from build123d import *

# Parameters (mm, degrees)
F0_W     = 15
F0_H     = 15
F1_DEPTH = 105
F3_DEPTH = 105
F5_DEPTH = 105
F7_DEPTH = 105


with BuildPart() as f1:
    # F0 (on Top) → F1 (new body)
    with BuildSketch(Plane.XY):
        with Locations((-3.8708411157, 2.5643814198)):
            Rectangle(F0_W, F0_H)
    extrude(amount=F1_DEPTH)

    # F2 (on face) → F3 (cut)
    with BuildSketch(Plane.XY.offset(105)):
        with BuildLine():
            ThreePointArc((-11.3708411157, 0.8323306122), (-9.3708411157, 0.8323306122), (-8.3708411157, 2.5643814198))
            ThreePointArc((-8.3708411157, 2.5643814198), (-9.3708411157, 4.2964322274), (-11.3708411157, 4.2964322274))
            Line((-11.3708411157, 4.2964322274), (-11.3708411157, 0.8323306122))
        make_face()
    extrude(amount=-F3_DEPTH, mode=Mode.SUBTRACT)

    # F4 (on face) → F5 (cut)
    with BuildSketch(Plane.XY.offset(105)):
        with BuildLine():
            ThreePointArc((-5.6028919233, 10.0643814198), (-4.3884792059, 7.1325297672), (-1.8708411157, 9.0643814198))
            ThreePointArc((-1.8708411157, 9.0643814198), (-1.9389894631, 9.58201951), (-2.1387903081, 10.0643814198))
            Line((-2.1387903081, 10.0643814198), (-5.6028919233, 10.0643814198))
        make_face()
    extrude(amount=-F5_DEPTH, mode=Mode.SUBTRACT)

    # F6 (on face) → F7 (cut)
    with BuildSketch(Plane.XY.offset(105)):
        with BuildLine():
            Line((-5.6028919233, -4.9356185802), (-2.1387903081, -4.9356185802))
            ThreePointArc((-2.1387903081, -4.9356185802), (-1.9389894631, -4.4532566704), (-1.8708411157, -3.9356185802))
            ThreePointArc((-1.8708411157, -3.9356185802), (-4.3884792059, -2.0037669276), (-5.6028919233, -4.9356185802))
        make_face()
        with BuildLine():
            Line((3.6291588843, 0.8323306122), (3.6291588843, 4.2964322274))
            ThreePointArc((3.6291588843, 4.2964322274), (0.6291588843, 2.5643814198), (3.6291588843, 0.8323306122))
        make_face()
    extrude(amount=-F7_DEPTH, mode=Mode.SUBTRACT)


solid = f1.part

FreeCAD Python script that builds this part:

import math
import FreeCAD as App
import Part
import Sketcher
Q = App.Units.Quantity


def add_polygon(sketch, points):
    """Adds a closed chain of lines whose ends are joined by coincident constraints."""
    first, n = sketch.GeometryCount, len(points)
    for a, b in zip(points, points[1:] + points[:1]):
        sketch.addGeometry(Part.LineSegment(App.Vector(*a, 0), App.Vector(*b, 0)), False)
    for i in range(n):
        sketch.addConstraint(Sketcher.Constraint("Coincident", first + i, 2, first + (i + 1) % n, 1))

doc = App.newDocument("Part")
body = doc.addObject("PartDesign::Body", "Body")

sketch1 = body.newObject("Sketcher::SketchObject", "Sketch")
sketch1.AttachmentSupport = (doc.getObject("XY_Plane"), [""])
sketch1.MapMode = "FlatFace"
add_polygon(sketch1, [(-11.370841, 10.064381), (-11.370841, -4.935619), (3.629159, -4.935619), (3.629159, 10.064381)])
sketch1.addConstraint([
    Sketcher.Constraint("Vertical", 0),
    Sketcher.Constraint("Horizontal", 1),
    Sketcher.Constraint("Vertical", 2),
    Sketcher.Constraint("Horizontal", 3),
    Sketcher.Constraint("Equal", 3, 0),
    Sketcher.Constraint("DistanceX", 1, 1, 1, 2, Q("15 mm")),
    Sketcher.Constraint("DistanceX", 0, 2, -1, 1, Q("11.370841 mm")),
    Sketcher.Constraint("DistanceY", 0, 2, -1, 1, Q("4.935619 mm")),
])
pad1 = body.newObject("PartDesign::Pad", "Pad")
pad1.Profile = sketch1
pad1.Length = 105

sketch2 = body.newObject("Sketcher::SketchObject", "Sketch001")
sketch2.AttachmentSupport = (doc.getObject("XY_Plane"), [""])
sketch2.MapMode = "FlatFace"
sketch2.AttachmentOffset = App.Placement(App.Vector(0, 0, 105), App.Rotation())
sketch2.addGeometry([
    Part.ArcOfCircle(Part.Circle(App.Vector(-10.370841, 2.564381, 0), App.Vector(0, 0, 1), 2), math.radians(-120), math.radians(0)),
    Part.ArcOfCircle(Part.Circle(App.Vector(-10.370841, 2.564381, 0), App.Vector(0, 0, 1), 2), math.radians(0), math.radians(120)),
    Part.LineSegment(App.Vector(-11.370841, 4.296432, 0), App.Vector(-11.370841, 0.832331, 0)),
], False)
sketch2.addConstraint([
    Sketcher.Constraint("Tangent", 0, 2, 1, 1),
    Sketcher.Constraint("Coincident", 1, 2, 2, 1),
    Sketcher.Constraint("Coincident", 2, 2, 0, 1),
    Sketcher.Constraint("Vertical", 2),
    Sketcher.Constraint("Equal", 0, 1),
    Sketcher.Constraint("Horizontal", 1, 3, 0, 2),
    Sketcher.Constraint("Radius", 0, Q("2 mm")),
    Sketcher.Constraint("DistanceX", 1, 2, 0, 3, Q("1 mm")),
    Sketcher.Constraint("DistanceX", 0, 3, -1, 1, Q("10.370841 mm")),
    Sketcher.Constraint("DistanceY", -1, 1, 0, 3, Q("2.564381 mm")),
])
pocket1 = body.newObject("PartDesign::Pocket", "Pocket")
pocket1.Profile = sketch2
pocket1.Length = 105

sketch3 = body.newObject("Sketcher::SketchObject", "Sketch002")
sketch3.AttachmentSupport = (doc.getObject("XY_Plane"), [""])
sketch3.MapMode = "FlatFace"
sketch3.AttachmentOffset = App.Placement(App.Vector(0, 0, 105), App.Rotation())
sketch3.addGeometry([
    Part.ArcOfCircle(Part.Circle(App.Vector(-3.870841, 9.064381, 0), App.Vector(0, 0, 1), 2), math.radians(150), math.radians(360)),
    Part.ArcOfCircle(Part.Circle(App.Vector(-3.870841, 9.064381, 0), App.Vector(0, 0, 1), 2), math.radians(0), math.radians(30)),
    Part.LineSegment(App.Vector(-2.13879, 10.064381, 0), App.Vector(-5.602892, 10.064381, 0)),
], False)
sketch3.addConstraint([
    Sketcher.Constraint("Tangent", 0, 2, 1, 1),
    Sketcher.Constraint("Coincident", 1, 2, 2, 1),
    Sketcher.Constraint("Coincident", 2, 2, 0, 1),
    Sketcher.Constraint("Horizontal", 2),
    Sketcher.Constraint("Equal", 0, 1),
    Sketcher.Constraint("Horizontal", 1, 3, 0, 2),
    Sketcher.Constraint("Radius", 0, Q("2 mm")),
    Sketcher.Constraint("DistanceY", 0, 2, 1, 2, Q("1 mm")),
    Sketcher.Constraint("DistanceX", 0, 3, -1, 1, Q("3.870841 mm")),
    Sketcher.Constraint("DistanceY", -1, 1, 0, 3, Q("9.064381 mm")),
])
pocket2 = body.newObject("PartDesign::Pocket", "Pocket001")
pocket2.Profile = sketch3
pocket2.Length = 105

sketch4 = body.newObject("Sketcher::SketchObject", "Sketch003")
sketch4.AttachmentSupport = (doc.getObject("XY_Plane"), [""])
sketch4.MapMode = "FlatFace"
sketch4.AttachmentOffset = App.Placement(App.Vector(0, 0, 105), App.Rotation())
sketch4.addGeometry([
    Part.LineSegment(App.Vector(-5.602892, -4.935619, 0), App.Vector(-2.13879, -4.935619, 0)),
    Part.ArcOfCircle(Part.Circle(App.Vector(-3.870841, -3.935619, 0), App.Vector(0, 0, 1), 2), math.radians(-30), math.radians(0)),
    Part.ArcOfCircle(Part.Circle(App.Vector(-3.870841, -3.935619, 0), App.Vector(0, 0, 1), 2), math.radians(0), math.radians(210)),
    Part.LineSegment(App.Vector(3.629159, 0.832331, 0), App.Vector(3.629159, 4.296432, 0)),
    Part.ArcOfCircle(Part.Circle(App.Vector(2.629159, 2.564381, 0), App.Vector(0, 0, 1), 2), math.radians(60), math.radians(300)),
], False)
sketch4.addConstraint([
    Sketcher.Constraint("Coincident", 0, 2, 1, 1),
    Sketcher.Constraint("Tangent", 1, 2, 2, 1),
    Sketcher.Constraint("Coincident", 2, 2, 0, 1),
    Sketcher.Constraint("Coincident", 3, 1, 4, 2),
    Sketcher.Constraint("Coincident", 4, 1, 3, 2),
    Sketcher.Constraint("Horizontal", 0),
    Sketcher.Constraint("Vertical", 3),
    Sketcher.Constraint("Equal", 1, 2),
    Sketcher.Constraint("Equal", 2, 4),
    Sketcher.Constraint("Horizontal", 2, 3, 1, 2),
    Sketcher.Constraint("Equal", 0, 3),
    Sketcher.Constraint("Radius", 1, Q("2 mm")),
    Sketcher.Constraint("DistanceY", 0, 2, 1, 3, Q("1 mm")),
    Sketcher.Constraint("DistanceX", 1, 3, 4, 3, Q("6.5 mm")),
    Sketcher.Constraint("DistanceY", 1, 3, 4, 3, Q("6.5 mm")),
    Sketcher.Constraint("DistanceX", 1, 3, -1, 1, Q("3.870841 mm")),
    Sketcher.Constraint("DistanceY", 1, 3, -1, 1, Q("3.935619 mm")),
])
pocket3 = body.newObject("PartDesign::Pocket", "Pocket002")
pocket3.Profile = sketch4
pocket3.Length = 105

doc.recompute()
